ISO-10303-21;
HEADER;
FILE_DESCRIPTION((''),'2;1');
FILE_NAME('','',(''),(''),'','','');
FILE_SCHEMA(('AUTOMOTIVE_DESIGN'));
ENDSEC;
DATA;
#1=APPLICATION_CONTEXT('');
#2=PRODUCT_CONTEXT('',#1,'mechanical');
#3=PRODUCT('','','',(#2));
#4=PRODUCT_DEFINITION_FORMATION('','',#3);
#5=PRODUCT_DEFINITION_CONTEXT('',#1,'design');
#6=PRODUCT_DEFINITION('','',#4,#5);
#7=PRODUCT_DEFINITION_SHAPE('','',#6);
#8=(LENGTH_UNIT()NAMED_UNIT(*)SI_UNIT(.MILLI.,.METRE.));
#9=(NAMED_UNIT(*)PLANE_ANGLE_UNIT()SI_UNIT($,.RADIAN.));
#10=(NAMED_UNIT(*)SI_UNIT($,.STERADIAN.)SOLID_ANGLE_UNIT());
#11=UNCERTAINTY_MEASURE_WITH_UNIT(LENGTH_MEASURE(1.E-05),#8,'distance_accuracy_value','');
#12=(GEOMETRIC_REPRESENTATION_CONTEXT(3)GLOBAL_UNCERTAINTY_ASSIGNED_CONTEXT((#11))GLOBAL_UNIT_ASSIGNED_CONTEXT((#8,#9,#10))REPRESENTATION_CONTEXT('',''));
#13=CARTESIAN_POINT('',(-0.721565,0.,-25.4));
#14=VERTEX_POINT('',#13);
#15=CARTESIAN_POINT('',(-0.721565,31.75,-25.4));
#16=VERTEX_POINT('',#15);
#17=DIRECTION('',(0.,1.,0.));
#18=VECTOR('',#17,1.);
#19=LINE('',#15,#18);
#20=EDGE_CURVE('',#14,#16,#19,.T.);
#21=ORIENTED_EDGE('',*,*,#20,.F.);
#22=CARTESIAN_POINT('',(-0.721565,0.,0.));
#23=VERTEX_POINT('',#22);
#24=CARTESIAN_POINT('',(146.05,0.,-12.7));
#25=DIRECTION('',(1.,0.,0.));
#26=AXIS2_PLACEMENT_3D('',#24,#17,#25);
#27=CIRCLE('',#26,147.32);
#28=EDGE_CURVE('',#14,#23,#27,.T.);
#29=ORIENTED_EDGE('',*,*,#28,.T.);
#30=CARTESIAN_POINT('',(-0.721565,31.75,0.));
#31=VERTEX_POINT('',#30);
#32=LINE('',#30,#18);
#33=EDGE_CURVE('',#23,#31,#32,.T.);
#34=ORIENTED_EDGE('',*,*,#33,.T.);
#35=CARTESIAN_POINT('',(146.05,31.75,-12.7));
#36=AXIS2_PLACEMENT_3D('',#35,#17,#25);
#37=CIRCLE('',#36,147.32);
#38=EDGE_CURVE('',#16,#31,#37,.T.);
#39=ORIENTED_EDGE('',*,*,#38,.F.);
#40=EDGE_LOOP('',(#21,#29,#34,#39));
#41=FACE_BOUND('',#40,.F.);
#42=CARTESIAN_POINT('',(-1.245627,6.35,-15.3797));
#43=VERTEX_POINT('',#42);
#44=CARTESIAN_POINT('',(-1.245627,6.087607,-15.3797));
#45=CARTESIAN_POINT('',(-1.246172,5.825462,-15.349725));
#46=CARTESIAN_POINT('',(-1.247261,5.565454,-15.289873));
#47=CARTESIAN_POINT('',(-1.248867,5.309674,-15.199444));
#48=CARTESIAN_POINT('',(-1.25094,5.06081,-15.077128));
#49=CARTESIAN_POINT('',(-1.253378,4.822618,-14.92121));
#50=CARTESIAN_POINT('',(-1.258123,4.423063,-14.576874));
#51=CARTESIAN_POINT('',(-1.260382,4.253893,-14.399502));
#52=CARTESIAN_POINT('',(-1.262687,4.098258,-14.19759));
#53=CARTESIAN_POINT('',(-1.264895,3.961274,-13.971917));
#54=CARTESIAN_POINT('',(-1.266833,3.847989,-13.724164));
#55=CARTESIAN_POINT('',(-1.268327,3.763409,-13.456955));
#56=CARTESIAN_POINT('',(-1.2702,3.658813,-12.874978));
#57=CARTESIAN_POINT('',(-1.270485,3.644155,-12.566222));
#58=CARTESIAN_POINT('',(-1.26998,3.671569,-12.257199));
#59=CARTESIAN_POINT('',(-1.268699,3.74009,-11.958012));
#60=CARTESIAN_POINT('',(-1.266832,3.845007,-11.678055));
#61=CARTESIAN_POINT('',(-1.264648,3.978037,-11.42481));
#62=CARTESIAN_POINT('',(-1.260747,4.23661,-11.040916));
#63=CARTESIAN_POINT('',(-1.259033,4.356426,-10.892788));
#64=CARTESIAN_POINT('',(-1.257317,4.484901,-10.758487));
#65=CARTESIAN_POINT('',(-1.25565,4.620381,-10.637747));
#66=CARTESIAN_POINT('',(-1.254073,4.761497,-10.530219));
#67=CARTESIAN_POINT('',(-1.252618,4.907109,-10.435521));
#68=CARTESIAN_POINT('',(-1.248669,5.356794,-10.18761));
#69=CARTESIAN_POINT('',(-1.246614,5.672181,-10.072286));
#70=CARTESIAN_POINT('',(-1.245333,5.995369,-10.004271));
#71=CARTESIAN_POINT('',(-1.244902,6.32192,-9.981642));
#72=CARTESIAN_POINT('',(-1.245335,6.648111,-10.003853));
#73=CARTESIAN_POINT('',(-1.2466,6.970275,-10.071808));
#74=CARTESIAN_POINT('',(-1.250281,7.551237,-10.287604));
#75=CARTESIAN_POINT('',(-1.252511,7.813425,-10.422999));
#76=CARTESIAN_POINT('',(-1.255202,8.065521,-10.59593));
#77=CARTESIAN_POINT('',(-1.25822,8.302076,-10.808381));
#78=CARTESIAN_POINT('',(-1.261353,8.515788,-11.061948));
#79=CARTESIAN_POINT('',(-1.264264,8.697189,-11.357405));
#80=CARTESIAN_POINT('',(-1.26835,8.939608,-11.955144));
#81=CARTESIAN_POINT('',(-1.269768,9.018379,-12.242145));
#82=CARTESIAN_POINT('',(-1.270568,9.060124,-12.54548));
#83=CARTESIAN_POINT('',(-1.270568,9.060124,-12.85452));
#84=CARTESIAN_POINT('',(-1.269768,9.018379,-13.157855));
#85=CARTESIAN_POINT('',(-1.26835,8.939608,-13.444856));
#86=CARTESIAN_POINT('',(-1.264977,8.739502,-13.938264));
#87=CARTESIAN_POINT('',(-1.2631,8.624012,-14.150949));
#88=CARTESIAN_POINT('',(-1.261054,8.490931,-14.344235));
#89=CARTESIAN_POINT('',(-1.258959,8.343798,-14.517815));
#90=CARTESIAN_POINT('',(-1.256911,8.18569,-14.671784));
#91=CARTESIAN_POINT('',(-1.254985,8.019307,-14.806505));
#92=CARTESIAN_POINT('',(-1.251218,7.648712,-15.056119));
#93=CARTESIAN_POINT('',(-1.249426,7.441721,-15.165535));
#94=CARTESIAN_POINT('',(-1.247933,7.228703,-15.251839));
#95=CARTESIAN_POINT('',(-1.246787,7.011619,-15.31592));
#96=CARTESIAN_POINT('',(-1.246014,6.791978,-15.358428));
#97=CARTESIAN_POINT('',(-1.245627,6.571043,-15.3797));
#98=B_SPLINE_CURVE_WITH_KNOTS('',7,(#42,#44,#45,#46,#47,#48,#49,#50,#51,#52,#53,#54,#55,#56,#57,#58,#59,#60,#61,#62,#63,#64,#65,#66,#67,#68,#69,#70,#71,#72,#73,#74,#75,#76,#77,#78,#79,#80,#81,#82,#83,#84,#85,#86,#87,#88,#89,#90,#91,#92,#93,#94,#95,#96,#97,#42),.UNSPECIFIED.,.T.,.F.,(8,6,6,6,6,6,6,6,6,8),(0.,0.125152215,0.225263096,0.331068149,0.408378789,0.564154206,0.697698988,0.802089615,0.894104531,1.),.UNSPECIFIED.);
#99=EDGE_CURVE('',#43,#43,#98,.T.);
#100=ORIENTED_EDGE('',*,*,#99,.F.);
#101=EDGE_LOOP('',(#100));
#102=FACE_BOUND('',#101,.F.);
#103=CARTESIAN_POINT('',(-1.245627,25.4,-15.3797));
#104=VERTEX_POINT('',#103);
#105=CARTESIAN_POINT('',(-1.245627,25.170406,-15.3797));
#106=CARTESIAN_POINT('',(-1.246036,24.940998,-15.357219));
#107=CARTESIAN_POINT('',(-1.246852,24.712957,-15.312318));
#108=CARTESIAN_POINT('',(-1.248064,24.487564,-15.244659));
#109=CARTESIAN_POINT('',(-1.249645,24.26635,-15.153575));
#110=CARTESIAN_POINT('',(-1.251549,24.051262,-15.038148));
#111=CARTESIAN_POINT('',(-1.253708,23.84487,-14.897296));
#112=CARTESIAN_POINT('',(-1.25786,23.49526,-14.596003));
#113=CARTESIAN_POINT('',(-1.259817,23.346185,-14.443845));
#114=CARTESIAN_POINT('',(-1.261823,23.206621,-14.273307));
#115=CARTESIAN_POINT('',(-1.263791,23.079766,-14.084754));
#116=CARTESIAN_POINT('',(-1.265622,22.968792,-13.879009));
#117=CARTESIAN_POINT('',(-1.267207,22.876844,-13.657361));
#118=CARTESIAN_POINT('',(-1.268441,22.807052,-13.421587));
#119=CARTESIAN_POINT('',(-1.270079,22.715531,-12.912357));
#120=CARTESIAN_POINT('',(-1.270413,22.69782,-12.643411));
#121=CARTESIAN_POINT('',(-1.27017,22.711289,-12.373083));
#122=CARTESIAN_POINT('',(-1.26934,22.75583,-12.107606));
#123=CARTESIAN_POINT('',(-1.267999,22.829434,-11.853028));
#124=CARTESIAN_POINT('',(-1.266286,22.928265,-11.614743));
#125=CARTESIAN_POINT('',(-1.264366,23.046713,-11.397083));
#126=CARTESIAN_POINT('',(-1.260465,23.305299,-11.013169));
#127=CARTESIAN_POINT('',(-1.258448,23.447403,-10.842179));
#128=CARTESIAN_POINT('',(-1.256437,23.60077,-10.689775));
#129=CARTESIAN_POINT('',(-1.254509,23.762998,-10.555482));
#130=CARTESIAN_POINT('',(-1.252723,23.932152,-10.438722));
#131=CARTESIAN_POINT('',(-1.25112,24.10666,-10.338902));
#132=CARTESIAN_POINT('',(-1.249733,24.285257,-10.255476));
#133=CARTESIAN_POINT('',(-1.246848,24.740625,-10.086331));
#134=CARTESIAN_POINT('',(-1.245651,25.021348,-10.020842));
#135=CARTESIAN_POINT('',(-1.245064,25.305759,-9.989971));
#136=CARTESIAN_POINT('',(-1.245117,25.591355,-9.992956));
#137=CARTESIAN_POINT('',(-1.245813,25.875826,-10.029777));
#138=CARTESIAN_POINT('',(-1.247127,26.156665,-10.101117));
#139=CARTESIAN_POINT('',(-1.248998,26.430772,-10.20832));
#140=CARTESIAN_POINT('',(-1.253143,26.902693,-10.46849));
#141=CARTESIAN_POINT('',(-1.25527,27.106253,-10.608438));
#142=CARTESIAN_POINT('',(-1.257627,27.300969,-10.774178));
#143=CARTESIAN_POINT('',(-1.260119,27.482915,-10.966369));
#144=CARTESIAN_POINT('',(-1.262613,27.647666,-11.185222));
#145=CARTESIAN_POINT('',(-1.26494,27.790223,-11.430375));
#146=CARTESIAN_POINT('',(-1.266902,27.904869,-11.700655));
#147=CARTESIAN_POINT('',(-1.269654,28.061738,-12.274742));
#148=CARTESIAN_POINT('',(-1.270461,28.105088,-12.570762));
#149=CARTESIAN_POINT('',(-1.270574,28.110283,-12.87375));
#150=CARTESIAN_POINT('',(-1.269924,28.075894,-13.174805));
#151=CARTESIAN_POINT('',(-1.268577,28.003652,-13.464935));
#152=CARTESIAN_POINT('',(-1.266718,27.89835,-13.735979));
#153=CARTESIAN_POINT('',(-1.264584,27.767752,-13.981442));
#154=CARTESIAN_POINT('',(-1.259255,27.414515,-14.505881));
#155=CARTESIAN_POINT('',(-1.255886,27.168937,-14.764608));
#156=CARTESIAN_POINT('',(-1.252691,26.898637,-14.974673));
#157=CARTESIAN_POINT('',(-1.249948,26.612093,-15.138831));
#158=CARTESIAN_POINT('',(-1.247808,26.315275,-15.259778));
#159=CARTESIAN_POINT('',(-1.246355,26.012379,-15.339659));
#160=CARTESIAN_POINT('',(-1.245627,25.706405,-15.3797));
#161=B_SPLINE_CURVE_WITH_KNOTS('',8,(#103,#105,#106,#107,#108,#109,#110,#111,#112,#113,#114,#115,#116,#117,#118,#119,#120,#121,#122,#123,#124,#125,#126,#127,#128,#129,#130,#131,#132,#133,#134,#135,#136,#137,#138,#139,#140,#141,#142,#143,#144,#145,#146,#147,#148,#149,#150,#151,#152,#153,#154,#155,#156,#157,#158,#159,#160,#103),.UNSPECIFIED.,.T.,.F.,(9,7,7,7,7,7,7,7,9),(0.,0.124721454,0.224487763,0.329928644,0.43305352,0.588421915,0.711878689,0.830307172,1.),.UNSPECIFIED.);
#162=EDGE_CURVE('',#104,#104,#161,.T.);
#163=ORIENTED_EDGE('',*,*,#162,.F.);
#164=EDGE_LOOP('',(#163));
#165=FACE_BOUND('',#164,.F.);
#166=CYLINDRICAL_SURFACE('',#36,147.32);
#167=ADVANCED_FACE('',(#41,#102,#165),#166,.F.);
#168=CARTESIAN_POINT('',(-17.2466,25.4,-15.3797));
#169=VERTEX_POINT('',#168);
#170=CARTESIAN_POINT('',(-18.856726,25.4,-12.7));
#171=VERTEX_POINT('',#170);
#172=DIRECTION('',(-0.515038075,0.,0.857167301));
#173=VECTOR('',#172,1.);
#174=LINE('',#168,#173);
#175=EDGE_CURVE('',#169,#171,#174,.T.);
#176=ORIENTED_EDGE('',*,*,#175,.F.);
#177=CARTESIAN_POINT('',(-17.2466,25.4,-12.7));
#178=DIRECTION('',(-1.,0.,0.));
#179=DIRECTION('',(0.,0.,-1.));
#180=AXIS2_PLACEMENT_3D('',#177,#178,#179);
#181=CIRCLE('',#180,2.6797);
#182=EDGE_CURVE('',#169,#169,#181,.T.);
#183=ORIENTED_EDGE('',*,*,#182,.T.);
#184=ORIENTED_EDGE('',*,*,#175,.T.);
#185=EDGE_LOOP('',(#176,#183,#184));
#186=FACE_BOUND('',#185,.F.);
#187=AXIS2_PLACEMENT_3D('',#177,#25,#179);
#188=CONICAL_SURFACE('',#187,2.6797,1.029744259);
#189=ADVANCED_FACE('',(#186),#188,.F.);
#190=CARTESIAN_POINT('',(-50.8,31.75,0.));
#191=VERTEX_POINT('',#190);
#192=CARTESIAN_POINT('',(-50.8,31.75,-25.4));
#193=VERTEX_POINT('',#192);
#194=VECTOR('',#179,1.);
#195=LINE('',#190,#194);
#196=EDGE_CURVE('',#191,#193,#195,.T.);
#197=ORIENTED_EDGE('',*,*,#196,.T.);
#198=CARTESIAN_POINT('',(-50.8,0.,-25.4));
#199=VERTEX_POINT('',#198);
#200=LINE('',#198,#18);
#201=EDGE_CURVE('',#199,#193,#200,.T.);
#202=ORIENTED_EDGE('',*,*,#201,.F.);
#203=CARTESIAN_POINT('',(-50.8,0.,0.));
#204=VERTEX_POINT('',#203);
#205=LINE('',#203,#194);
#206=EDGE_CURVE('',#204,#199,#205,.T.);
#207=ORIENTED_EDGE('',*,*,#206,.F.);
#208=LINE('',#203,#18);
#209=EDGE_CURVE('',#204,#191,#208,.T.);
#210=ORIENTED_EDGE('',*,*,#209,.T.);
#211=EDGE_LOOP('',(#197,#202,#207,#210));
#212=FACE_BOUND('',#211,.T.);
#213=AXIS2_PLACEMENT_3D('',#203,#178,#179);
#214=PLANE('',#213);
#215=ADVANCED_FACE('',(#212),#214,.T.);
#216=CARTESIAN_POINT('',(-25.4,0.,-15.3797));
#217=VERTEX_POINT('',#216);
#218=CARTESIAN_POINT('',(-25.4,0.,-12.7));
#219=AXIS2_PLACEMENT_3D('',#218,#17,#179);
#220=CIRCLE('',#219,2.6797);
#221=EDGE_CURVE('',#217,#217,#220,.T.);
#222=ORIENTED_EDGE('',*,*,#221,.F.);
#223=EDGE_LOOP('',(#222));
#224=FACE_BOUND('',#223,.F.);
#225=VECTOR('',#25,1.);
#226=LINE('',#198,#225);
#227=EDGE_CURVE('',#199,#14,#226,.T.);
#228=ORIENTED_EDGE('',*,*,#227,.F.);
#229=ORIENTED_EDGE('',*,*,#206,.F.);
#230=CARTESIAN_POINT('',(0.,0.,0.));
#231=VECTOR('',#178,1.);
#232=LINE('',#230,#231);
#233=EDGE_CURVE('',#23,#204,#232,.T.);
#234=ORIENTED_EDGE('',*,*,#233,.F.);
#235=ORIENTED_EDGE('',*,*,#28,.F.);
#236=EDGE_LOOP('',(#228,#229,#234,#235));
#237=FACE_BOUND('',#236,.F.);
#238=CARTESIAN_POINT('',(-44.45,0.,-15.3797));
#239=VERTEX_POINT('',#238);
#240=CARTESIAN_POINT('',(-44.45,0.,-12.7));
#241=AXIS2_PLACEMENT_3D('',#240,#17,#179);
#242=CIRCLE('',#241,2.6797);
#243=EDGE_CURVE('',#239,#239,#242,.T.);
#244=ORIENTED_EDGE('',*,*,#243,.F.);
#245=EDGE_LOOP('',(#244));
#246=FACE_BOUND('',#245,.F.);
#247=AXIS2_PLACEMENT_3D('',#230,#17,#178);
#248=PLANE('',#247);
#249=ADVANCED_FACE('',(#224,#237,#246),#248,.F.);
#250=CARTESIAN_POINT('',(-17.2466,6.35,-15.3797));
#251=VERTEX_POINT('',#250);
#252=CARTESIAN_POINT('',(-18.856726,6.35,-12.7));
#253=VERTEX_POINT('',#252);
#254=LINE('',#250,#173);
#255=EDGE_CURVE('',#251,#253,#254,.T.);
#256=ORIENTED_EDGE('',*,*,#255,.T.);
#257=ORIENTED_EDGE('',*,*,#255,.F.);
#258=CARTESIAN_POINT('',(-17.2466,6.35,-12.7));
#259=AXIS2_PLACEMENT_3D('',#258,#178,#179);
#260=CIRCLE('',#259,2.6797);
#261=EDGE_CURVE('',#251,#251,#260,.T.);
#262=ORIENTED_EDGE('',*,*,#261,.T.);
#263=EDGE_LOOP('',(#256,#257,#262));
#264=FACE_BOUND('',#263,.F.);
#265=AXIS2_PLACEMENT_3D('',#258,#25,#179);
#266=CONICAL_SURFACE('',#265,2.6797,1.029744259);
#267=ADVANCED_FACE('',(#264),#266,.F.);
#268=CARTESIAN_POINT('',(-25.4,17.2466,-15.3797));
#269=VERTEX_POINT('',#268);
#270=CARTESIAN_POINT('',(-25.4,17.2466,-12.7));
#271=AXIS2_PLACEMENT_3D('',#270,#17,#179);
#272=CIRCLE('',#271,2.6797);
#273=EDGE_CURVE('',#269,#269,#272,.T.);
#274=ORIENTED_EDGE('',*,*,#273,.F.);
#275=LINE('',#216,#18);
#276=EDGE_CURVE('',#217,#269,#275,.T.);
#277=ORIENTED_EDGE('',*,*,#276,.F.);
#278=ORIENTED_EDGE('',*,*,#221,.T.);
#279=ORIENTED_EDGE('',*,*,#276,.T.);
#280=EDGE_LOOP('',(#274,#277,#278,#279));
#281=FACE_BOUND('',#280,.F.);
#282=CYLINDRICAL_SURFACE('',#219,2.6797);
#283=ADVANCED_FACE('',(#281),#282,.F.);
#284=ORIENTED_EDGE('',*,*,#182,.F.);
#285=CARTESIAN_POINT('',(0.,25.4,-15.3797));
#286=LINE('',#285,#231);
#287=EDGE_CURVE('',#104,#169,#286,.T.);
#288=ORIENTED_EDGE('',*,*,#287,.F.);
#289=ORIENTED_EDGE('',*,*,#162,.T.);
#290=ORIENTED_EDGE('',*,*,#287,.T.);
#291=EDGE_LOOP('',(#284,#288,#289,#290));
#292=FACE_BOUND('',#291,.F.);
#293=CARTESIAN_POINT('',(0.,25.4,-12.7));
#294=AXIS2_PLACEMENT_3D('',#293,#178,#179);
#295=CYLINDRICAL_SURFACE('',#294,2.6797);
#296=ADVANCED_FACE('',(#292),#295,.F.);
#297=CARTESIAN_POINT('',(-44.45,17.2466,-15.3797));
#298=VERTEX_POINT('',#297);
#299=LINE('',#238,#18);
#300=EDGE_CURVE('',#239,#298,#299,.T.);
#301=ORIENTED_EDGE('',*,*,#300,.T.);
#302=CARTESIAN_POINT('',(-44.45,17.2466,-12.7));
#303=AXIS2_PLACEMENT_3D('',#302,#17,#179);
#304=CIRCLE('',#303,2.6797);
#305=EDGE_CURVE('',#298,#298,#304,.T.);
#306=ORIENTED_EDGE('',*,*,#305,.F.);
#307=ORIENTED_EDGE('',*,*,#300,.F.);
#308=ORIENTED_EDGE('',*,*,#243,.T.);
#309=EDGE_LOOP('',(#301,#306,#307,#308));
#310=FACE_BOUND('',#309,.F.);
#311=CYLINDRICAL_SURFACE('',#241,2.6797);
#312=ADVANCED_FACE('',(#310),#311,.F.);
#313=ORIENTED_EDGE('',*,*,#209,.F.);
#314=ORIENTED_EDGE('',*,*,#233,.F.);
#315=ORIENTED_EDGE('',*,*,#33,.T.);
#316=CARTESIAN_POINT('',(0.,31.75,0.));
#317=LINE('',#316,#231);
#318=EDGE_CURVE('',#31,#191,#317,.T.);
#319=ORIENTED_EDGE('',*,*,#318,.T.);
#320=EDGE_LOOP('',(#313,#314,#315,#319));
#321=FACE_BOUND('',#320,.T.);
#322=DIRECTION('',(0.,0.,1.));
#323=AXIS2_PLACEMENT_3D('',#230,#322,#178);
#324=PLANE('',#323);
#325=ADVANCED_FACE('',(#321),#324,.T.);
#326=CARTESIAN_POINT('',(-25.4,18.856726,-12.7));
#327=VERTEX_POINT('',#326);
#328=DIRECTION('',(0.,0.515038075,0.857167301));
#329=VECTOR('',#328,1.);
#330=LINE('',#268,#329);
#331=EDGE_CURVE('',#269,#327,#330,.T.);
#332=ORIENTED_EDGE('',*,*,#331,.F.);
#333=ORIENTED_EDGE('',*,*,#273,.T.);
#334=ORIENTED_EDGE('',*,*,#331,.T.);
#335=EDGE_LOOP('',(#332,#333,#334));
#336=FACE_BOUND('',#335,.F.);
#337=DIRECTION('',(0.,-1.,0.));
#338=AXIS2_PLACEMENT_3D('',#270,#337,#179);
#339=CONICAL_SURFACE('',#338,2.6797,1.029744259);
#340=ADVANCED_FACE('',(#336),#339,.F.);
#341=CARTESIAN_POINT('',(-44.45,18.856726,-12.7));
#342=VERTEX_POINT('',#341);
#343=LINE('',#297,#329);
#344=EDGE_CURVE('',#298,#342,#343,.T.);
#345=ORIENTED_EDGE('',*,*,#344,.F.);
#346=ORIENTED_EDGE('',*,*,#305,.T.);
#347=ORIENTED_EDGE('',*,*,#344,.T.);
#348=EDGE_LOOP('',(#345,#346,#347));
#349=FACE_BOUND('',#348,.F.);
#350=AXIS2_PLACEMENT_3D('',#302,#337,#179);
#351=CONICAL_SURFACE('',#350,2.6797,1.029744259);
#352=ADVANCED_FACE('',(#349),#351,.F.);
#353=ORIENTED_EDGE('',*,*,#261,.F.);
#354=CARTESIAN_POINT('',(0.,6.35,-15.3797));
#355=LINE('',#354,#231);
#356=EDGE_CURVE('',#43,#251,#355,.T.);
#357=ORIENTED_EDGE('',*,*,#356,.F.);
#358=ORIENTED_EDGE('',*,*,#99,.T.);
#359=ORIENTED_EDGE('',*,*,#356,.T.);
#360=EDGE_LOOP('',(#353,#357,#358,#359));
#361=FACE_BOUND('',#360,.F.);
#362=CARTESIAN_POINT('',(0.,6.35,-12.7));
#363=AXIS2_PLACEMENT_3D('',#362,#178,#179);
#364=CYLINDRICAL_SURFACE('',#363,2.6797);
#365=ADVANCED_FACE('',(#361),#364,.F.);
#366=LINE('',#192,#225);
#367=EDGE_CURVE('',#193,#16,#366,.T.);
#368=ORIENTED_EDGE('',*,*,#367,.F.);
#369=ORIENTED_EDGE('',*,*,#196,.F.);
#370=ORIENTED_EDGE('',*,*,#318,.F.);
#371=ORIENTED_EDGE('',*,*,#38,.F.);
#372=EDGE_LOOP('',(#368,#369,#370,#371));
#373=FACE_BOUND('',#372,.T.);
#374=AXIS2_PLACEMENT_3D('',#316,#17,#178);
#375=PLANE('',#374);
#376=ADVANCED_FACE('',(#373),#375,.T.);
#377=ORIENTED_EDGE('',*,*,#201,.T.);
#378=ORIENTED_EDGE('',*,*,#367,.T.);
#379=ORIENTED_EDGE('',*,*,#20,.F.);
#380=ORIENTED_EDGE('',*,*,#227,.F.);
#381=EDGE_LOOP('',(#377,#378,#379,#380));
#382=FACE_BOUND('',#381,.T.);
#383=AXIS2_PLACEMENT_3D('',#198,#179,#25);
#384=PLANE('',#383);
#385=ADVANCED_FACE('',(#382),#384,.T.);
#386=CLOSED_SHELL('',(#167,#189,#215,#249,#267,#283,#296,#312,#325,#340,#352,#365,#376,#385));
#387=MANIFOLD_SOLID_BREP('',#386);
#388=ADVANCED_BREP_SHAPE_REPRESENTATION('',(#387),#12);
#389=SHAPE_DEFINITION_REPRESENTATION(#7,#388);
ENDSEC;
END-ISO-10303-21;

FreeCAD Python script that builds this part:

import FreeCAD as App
import Part
import Sketcher
from FreeCAD import Vector
Q = App.Units.Quantity


def add_polygon(sketch, points):
    """Adds a closed chain of lines whose ends are joined by coincident constraints."""
    first, n = sketch.GeometryCount, len(points)
    for a, b in zip(points, points[1:] + points[:1]):
        sketch.addGeometry(Part.LineSegment(App.Vector(*a, 0), App.Vector(*b, 0)), False)
    for i in range(n):
        sketch.addConstraint(Sketcher.Constraint("Coincident", first + i, 2, first + (i + 1) % n, 1))

doc = App.newDocument("Part")
params = doc.addObject("Spreadsheet::Sheet", "Params")
for row, (alias, value) in enumerate([
    ("sketch1_width", "2 in"),
    ("sketch1_height", "1 in"),
    ("pad1_length", "1.25 in"),
    ("sketch2_diameter", "0.211 in"),
    ("hole_diameter", "0.211 in"),
    ("hole_depth", "0.679 in"),
    ("sketch3_diameter", "11.6 in"),
    ("pocket1_length", "2 in"),
    ("sketch4_diameter", "0.211 in"),
    ("hole2_diameter", "0.211 in"),
    ("hole2_depth", "0.679 in"),
], start=1):
    params.set(f"A{row}", alias)
    params.set(f"B{row}", "=" + value)
    params.setAlias(f"B{row}", alias)

body = doc.addObject("PartDesign::Body", "Body")

sketch1 = body.newObject("Sketcher::SketchObject", "Sketch")
sketch1.AttachmentSupport = (doc.getObject("XZ_Plane"), [""])
sketch1.MapMode = "FlatFace"
add_polygon(sketch1, [(-51, 0), (0, 0), (0, -25), (-51, -25)])
sketch1.addConstraint(Sketcher.Constraint("Horizontal", 0))
sketch1.addConstraint(Sketcher.Constraint("Vertical", 1))
sketch1.addConstraint(Sketcher.Constraint("Horizontal", 2))
sketch1.addConstraint(Sketcher.Constraint("Vertical", 3))
sketch1.addConstraint(Sketcher.Constraint("Coincident", 0, 2, -1, 1))
sketch1.addConstraint(Sketcher.Constraint("DistanceX", 0, 1, 0, 2, Q("2 in")))
sketch1.addConstraint(Sketcher.Constraint("DistanceY", 1, 2, 1, 1, Q("1 in")))
sketch1.setExpression("Constraints[9]", "Params.sketch1_width")
sketch1.setExpression("Constraints[10]", "Params.sketch1_height")
pad1 = body.newObject("PartDesign::Pad", "Pad")
pad1.Profile = sketch1
pad1.setExpression("Length", "Params.pad1_length")
pad1.Reversed = True

sketch2 = body.newObject("Sketcher::SketchObject", "Sketch001")
sketch2.AttachmentSupport = (doc.getObject("YZ_Plane"), [""])
sketch2.MapMode = "FlatFace"
sketch2.addGeometry(Part.Circle(Vector(25.4, -12.7, 0), Vector(0, 0, 1), 2.7), False)
sketch2.addGeometry(Part.Circle(Vector(6.3, -12.7, 0), Vector(0, 0, 1), 2.7), False)
sketch2.addConstraint(Sketcher.Constraint("Equal", 0, 1))
sketch2.addConstraint(Sketcher.Constraint("Horizontal", 0, 3, 1, 3))
sketch2.addConstraint(Sketcher.Constraint("Diameter", 0, Q("0.211 in")))
sketch2.addConstraint(Sketcher.Constraint("DistanceX", -1, 1, 0, 3, Q("1 in")))
sketch2.addConstraint(Sketcher.Constraint("DistanceY", 0, 3, -1, 1, Q("0.5 in")))
sketch2.addConstraint(Sketcher.Constraint("DistanceX", -1, 1, 1, 3, Q("0.25 in")))
sketch2.setExpression("Constraints[2]", "Params.sketch2_diameter")
doc.recompute()
hole = body.newObject("PartDesign::Hole", "Hole")
hole.Profile = sketch2
hole.ThreadType = "None"
hole.setExpression("Diameter", "Params.hole_diameter")
hole.DepthType = "Dimension"
hole.setExpression("Depth", "Params.hole_depth")
hole.DrillPoint = "Angled"
hole.DrillPointAngle = 118

sketch3 = body.newObject("Sketcher::SketchObject", "Sketch002")
sketch3.AttachmentSupport = (doc.getObject("XZ_Plane"), [""])
sketch3.MapMode = "FlatFace"
sketch3.AttachmentOffset = App.Placement(Vector(0, 0, -1.25 * 25.4), App.Rotation())
sketch3.addGeometry(Part.Circle(Vector(146, -13, 0), Vector(0, 0, 1), 147), False)
sketch3.addConstraint(Sketcher.Constraint("Diameter", 0, Q("11.6 in")))
sketch3.addConstraint(Sketcher.Constraint("DistanceX", -1, 1, 0, 3, Q("5.75 in")))
sketch3.addConstraint(Sketcher.Constraint("DistanceY", 0, 3, -1, 1, Q("0.5 in")))
sketch3.setExpression("Constraints[0]", "Params.sketch3_diameter")
pocket1 = body.newObject("PartDesign::Pocket", "Pocket")
pocket1.Profile = sketch3
pocket1.setExpression("Length", "Params.pocket1_length")
pocket1.Reversed = True

sketch4 = body.newObject("Sketcher::SketchObject", "Sketch003")
sketch4.AttachmentSupport = (doc.getObject("XZ_Plane"), [""])
sketch4.MapMode = "FlatFace"
sketch4.addGeometry(Part.Circle(Vector(-44.5, -12.7, 0), Vector(0, 0, 1), 2.7), False)
sketch4.addGeometry(Part.Circle(Vector(-25.4, -12.7, 0), Vector(0, 0, 1), 2.7), False)
sketch4.addConstraint(Sketcher.Constraint("Equal", 0, 1))
sketch4.addConstraint(Sketcher.Constraint("Horizontal", 0, 3, 1, 3))
sketch4.addConstraint(Sketcher.Constraint("Diameter", 0, Q("0.211 in")))
sketch4.addConstraint(Sketcher.Constraint("DistanceX", 1, 3, -1, 1, Q("1 in")))
sketch4.addConstraint(Sketcher.Constraint("DistanceY", 0, 3, -1, 1, Q("0.5 in")))
sketch4.addConstraint(Sketcher.Constraint("DistanceX", 0, 3, -1, 1, Q("1.75 in")))
sketch4.setExpression("Constraints[2]", "Params.sketch4_diameter")
doc.recompute()
hole2 = body.newObject("PartDesign::Hole", "Hole001")
hole2.Profile = sketch4
hole2.ThreadType = "None"
hole2.setExpression("Diameter", "Params.hole2_diameter")
hole2.DepthType = "Dimension"
hole2.setExpression("Depth", "Params.hole2_depth")
hole2.DrillPoint = "Angled"
hole2.DrillPointAngle = 118

doc.recompute()
